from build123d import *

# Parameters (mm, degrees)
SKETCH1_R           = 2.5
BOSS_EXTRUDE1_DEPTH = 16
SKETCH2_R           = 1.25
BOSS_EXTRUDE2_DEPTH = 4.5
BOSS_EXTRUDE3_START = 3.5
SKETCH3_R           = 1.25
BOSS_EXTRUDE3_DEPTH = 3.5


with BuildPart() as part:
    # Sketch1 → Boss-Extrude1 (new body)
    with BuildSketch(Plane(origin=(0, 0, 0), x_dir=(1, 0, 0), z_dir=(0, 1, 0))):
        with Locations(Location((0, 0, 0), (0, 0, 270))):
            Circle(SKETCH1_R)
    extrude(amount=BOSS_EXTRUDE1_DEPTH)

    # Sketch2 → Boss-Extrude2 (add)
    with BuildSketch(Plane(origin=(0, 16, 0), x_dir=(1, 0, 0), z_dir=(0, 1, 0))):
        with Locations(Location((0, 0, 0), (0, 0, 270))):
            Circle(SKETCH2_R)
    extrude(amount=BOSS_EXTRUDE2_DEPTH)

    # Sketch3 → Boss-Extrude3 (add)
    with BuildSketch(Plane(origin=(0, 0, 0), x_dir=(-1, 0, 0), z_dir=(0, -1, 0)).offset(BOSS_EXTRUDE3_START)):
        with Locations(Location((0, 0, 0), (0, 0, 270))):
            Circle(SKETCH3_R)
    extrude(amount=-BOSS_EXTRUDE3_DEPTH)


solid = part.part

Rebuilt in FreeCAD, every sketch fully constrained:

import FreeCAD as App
import Part
import Sketcher
from FreeCAD import Vector
Q = App.Units.Quantity

doc = App.newDocument("Part")
body = doc.addObject("PartDesign::Body", "Body")

sketch1 = body.newObject("Sketcher::SketchObject", "Sketch")
sketch1.AttachmentSupport = (doc.getObject("XZ_Plane"), [""])
sketch1.MapMode = "FlatFace"
sketch1.addGeometry(Part.Circle(Vector(0, 0, 0), Vector(0, 0, 1), 2.5), False)
sketch1.addConstraint([
    Sketcher.Constraint("Coincident", 0, 3, -1, 1),
    Sketcher.Constraint("Diameter", 0, Q("5 mm")),
])
pad1 = body.newObject("PartDesign::Pad", "Pad")
pad1.Profile = sketch1
pad1.Length = 16
pad1.Reversed = True

sketch2 = body.newObject("Sketcher::SketchObject", "Sketch001")
sketch2.AttachmentSupport = (doc.getObject("XZ_Plane"), [""])
sketch2.MapMode = "FlatFace"
sketch2.AttachmentOffset = App.Placement(Vector(0, 0, -16), App.Rotation())
sketch2.addGeometry(Part.Circle(Vector(0, 0, 0), Vector(0, 0, 1), 1.2), False)
sketch2.addConstraint([
    Sketcher.Constraint("Coincident", 0, 3, -1, 1),
    Sketcher.Constraint("Diameter", 0, Q("2.5 mm")),
])
pad2 = body.newObject("PartDesign::Pad", "Pad001")
pad2.Profile = sketch2
pad2.Length = 4.5
pad2.Reversed = True

sketch3 = body.newObject("Sketcher::SketchObject", "Sketch002")
sketch3.AttachmentSupport = (doc.getObject("XZ_Plane"), [""])
sketch3.MapMode = "FlatFace"
sketch3.AttachmentOffset = App.Placement(Vector(0, 0, 3.5), App.Rotation())
sketch3.addGeometry(Part.Circle(Vector(0, 0, 0), Vector(0, 0, 1), 1.2), False)
sketch3.addConstraint([
    Sketcher.Constraint("Coincident", 0, 3, -1, 1),
    Sketcher.Constraint("Diameter", 0, Q("2.5 mm")),
])
pad3 = body.newObject("PartDesign::Pad", "Pad002")
pad3.Profile = sketch3
pad3.Length = 3.5
pad3.Reversed = True

doc.recompute()
